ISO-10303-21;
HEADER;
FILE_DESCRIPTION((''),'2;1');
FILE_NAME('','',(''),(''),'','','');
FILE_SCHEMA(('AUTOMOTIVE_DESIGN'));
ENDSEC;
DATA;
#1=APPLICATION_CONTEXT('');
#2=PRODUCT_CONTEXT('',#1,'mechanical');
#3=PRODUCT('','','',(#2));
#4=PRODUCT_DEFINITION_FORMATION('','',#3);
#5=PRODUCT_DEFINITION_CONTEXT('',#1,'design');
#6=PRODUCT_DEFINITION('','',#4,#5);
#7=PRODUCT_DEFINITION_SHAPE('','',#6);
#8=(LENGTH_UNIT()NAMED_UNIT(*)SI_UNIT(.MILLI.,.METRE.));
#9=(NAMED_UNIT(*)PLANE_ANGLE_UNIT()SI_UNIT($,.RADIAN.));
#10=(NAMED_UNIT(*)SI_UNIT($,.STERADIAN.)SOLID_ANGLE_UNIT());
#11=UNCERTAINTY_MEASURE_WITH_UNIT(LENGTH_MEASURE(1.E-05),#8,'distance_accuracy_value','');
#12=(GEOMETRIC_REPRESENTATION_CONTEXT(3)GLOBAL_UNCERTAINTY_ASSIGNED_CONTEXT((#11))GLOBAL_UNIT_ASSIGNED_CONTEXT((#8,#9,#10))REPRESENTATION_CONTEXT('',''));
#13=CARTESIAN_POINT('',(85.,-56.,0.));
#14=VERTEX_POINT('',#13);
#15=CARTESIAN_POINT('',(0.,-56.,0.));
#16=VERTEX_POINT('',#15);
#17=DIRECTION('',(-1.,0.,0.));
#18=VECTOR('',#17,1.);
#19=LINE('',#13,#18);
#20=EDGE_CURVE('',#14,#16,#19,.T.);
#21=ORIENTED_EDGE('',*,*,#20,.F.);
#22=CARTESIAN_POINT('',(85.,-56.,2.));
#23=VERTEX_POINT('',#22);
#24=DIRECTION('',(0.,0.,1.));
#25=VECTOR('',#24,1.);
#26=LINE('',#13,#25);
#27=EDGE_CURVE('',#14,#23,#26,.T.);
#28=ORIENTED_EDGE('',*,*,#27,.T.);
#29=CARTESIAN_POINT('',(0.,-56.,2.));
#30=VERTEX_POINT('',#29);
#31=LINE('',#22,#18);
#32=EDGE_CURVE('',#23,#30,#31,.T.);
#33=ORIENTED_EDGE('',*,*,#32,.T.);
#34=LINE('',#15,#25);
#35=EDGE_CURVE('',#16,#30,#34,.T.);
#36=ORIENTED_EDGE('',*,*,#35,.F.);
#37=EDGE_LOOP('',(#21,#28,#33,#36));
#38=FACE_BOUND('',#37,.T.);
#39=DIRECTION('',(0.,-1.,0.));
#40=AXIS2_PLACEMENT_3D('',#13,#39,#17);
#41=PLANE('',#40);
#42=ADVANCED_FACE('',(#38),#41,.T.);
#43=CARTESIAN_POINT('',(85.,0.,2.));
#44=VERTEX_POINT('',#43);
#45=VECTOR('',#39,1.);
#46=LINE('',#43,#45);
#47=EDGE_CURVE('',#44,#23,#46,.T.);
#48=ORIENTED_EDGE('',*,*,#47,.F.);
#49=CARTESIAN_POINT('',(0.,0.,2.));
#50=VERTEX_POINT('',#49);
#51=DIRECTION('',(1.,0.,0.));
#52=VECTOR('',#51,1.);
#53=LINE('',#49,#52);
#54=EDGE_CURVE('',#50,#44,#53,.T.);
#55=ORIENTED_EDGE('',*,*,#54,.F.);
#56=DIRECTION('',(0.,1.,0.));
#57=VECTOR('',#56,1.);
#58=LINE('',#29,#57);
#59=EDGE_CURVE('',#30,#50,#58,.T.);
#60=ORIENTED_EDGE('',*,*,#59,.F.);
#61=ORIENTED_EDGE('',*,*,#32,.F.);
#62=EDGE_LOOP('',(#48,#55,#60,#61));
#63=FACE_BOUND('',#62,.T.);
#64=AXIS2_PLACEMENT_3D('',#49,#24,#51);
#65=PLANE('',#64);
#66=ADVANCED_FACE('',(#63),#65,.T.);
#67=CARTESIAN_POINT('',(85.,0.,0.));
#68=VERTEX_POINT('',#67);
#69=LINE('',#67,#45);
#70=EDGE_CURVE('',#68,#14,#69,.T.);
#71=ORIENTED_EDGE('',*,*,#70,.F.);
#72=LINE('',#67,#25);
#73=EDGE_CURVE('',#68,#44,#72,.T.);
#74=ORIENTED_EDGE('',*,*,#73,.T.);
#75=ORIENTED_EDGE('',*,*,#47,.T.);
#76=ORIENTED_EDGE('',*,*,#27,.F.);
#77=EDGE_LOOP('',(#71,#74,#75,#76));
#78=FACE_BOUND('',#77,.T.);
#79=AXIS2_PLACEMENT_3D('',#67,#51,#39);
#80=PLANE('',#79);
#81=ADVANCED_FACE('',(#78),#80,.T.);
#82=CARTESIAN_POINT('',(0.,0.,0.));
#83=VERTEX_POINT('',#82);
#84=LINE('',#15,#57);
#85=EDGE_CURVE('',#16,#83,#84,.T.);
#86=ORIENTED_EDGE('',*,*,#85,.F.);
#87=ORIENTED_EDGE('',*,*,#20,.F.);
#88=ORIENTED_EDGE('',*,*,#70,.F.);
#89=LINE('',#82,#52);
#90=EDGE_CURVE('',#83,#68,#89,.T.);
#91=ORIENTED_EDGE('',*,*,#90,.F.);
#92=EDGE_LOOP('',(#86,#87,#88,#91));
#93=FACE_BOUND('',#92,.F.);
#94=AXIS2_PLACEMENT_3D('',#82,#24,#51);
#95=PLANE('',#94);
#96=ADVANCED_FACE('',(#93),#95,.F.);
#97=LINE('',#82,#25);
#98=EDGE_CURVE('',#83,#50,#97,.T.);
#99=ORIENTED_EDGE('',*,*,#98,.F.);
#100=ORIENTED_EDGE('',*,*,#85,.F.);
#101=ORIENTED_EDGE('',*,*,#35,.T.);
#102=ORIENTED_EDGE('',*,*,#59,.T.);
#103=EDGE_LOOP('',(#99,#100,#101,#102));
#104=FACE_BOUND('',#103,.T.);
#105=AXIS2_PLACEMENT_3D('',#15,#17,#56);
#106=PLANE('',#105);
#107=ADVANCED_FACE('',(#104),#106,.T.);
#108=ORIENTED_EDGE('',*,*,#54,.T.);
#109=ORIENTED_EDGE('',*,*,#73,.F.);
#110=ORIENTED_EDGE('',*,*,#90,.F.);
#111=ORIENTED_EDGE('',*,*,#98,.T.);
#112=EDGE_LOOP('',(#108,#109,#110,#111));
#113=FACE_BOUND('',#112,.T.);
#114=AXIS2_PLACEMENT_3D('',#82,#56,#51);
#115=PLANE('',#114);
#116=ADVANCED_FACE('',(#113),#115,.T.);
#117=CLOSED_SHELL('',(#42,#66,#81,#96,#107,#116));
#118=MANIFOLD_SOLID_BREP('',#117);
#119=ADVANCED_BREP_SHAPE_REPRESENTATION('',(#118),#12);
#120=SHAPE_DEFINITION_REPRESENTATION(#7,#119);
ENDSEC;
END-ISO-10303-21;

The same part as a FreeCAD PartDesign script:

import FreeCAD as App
import Part
import Sketcher

V = App.Vector


def add_polygon(sketch, points):
    """Adds a closed chain of lines whose ends are joined by coincident constraints."""
    first, n = sketch.GeometryCount, len(points)
    for a, b in zip(points, points[1:] + points[:1]):
        sketch.addGeometry(Part.LineSegment(App.Vector(*a, 0), App.Vector(*b, 0)), False)
    for i in range(n):
        sketch.addConstraint(Sketcher.Constraint("Coincident", first + i, 2, first + (i + 1) % n, 1))

doc = App.newDocument("Part")
body = doc.addObject("PartDesign::Body", "Body")

# Sketch on XY plane
sketch1 = body.newObject("Sketcher::SketchObject", "Sketch")
sketch1.AttachmentSupport = (doc.getObject("XY_Plane"), [""])
sketch1.MapMode = "FlatFace"
add_polygon(sketch1, [(85, 0), (0, 0), (0, -56), (85, -56)])  # lines 0-3
sketch1.addConstraint([
    Sketcher.Constraint("Horizontal", 0),
    Sketcher.Constraint("Vertical", 1),
    Sketcher.Constraint("Horizontal", 2),
    Sketcher.Constraint("Vertical", 3),
    Sketcher.Constraint("Coincident", 0, 2, -1, 1),
    Sketcher.Constraint("DistanceX", 0, 2, 0, 1, 85.0),
    Sketcher.Constraint("DistanceY", 1, 2, 1, 1, 56.0),
])
pad1 = body.newObject("PartDesign::Pad", "Pad")
pad1.Profile = sketch1
pad1.Length = 2

doc.recompute()
